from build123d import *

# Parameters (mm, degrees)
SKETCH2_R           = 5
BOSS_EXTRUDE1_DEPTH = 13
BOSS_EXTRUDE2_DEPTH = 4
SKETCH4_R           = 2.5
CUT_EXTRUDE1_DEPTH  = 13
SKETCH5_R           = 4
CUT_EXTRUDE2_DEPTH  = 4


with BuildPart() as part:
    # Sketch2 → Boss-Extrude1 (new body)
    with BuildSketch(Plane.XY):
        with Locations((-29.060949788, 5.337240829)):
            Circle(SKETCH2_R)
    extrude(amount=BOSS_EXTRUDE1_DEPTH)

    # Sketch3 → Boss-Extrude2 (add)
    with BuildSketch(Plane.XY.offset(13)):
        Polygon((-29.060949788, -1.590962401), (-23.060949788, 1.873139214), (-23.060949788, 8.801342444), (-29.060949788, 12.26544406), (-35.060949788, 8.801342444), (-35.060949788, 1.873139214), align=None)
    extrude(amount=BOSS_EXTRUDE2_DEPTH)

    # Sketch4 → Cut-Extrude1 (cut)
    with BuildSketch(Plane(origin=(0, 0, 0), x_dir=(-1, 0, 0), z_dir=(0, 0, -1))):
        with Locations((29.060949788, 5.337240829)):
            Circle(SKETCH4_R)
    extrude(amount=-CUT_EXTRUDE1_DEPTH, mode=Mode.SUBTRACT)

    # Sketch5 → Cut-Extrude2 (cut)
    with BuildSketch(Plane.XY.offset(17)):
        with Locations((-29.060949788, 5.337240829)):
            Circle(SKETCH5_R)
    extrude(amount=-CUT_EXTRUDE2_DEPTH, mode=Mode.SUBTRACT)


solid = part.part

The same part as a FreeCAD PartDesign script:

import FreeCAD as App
import Part
import Sketcher

V = App.Vector
Q = App.Units.Quantity

doc = App.newDocument("Part")
params = doc.addObject("Spreadsheet::Sheet", "Params")
for row, (alias, value) in enumerate([
    ("sketch1_diameter", "10 mm"),
    ("pad1_length", "13 mm"),
    ("pad2_length", "4 mm"),
    ("sketch3_diameter", "5 mm"),
    ("pocket1_length", "13 mm"),
    ("sketch4_diameter", "8 mm"),
    ("pocket2_length", "4 mm"),
], start=1):
    params.set(f"A{row}", alias)
    params.set(f"B{row}", "=" + value)
    params.setAlias(f"B{row}", alias)

body = doc.addObject("PartDesign::Body", "Body")

# Sketch on XY plane
sketch1 = doc.addObject("Sketcher::SketchObject", "Sketch")
body.addObject(sketch1)
sketch1.AttachmentSupport = (doc.XY_Plane, [""])
sketch1.MapMode = "FlatFace"
sketch1.addGeometry(Part.Circle(V(-29, 5, 0), V(0, 0, 1), 5), False)
sketch1.addConstraint([
    Sketcher.Constraint("Diameter", 0, 10.0),
    Sketcher.Constraint("DistanceX", 0, 3, -1, 1, 29.06095),
    Sketcher.Constraint("DistanceY", -1, 1, 0, 3, 5.337241),
])
sketch1.setExpression("Constraints[0]", "Params.sketch1_diameter")
pad1 = doc.addObject("PartDesign::Pad", "Pad")
body.addObject(pad1)
pad1.Profile = sketch1
pad1.setExpression("Length", "Params.pad1_length")

# Sketch on XY plane
sketch2 = doc.addObject("Sketcher::SketchObject", "Sketch001")
body.addObject(sketch2)
sketch2.AttachmentSupport = (doc.XY_Plane, [""])
sketch2.MapMode = "FlatFace"
sketch2.AttachmentOffset = App.Placement(V(0, 0, 13), App.Rotation())
sketch2.addGeometry([
    Part.LineSegment(V(-29, -2, 0), V(-23, 2, 0)),  # 0
    Part.LineSegment(V(-23, 2, 0), V(-23, 9, 0)),  # 1
    Part.LineSegment(V(-23, 9, 0), V(-29, 12, 0)),  # 2
    Part.LineSegment(V(-29, 12, 0), V(-35, 9, 0)),  # 3
    Part.LineSegment(V(-35, 9, 0), V(-35, 2, 0)),  # 4
    Part.LineSegment(V(-35, 2, 0), V(-29, -2, 0)),  # 5
], False)
sketch2.addConstraint([
    Sketcher.Constraint("Coincident", 0, 2, 1, 1),
    Sketcher.Constraint("Coincident", 1, 2, 2, 1),
    Sketcher.Constraint("Coincident", 2, 2, 3, 1),
    Sketcher.Constraint("Coincident", 3, 2, 4, 1),
    Sketcher.Constraint("Coincident", 4, 2, 5, 1),
    Sketcher.Constraint("Coincident", 5, 2, 0, 1),
    Sketcher.Constraint("Vertical", 1),
    Sketcher.Constraint("Vertical", 4),
    Sketcher.Constraint("Parallel", 0, 3),
    Sketcher.Constraint("Parallel", 2, 5),
    Sketcher.Constraint("Horizontal", 1, 2, 3, 2),
    Sketcher.Constraint("Horizontal", 0, 2, 4, 2),
    Sketcher.Constraint("Vertical", 2, 2, 5, 2),
    Sketcher.Constraint("Angle", 0, Q("30 deg")),
    Sketcher.Constraint("DistanceX", 2, 2, 1, 2, 6.0),
    Sketcher.Constraint("DistanceY", 1, 1, 1, 2, 6.928203),
    Sketcher.Constraint("DistanceX", 0, 2, -1, 1, 23.06095),
    Sketcher.Constraint("DistanceY", -1, 1, 0, 2, 1.873139),
])
pad2 = doc.addObject("PartDesign::Pad", "Pad001")
body.addObject(pad2)
pad2.Profile = sketch2
pad2.setExpression("Length", "Params.pad2_length")

# Sketch on XY plane
sketch3 = doc.addObject("Sketcher::SketchObject", "Sketch002")
body.addObject(sketch3)
sketch3.AttachmentSupport = (doc.XY_Plane, [""])
sketch3.MapMode = "FlatFace"
sketch3.addGeometry(Part.Circle(V(-29.1, 5.3, 0), V(0, 0, 1), 2.5), False)
sketch3.addConstraint([
    Sketcher.Constraint("Diameter", 0, 5.0),
    Sketcher.Constraint("DistanceX", 0, 3, -1, 1, 29.06095),
    Sketcher.Constraint("DistanceY", -1, 1, 0, 3, 5.337241),
])
sketch3.setExpression("Constraints[0]", "Params.sketch3_diameter")
pocket1 = doc.addObject("PartDesign::Pocket", "Pocket")
body.addObject(pocket1)
pocket1.Profile = sketch3
pocket1.setExpression("Length", "Params.pocket1_length")
pocket1.Reversed = True

# Sketch on XY plane
sketch4 = doc.addObject("Sketcher::SketchObject", "Sketch003")
body.addObject(sketch4)
sketch4.AttachmentSupport = (doc.XY_Plane, [""])
sketch4.MapMode = "FlatFace"
sketch4.AttachmentOffset = App.Placement(V(0, 0, 17), App.Rotation())
sketch4.addGeometry(Part.Circle(V(-29.1, 5.3, 0), V(0, 0, 1), 4), False)
sketch4.addConstraint([
    Sketcher.Constraint("Diameter", 0, 8.0),
    Sketcher.Constraint("DistanceX", 0, 3, -1, 1, 29.06095),
    Sketcher.Constraint("DistanceY", -1, 1, 0, 3, 5.337241),
])
sketch4.setExpression("Constraints[0]", "Params.sketch4_diameter")
pocket2 = doc.addObject("PartDesign::Pocket", "Pocket001")
body.addObject(pocket2)
pocket2.Profile = sketch4
pocket2.setExpression("Length", "Params.pocket2_length")

doc.recompute()
